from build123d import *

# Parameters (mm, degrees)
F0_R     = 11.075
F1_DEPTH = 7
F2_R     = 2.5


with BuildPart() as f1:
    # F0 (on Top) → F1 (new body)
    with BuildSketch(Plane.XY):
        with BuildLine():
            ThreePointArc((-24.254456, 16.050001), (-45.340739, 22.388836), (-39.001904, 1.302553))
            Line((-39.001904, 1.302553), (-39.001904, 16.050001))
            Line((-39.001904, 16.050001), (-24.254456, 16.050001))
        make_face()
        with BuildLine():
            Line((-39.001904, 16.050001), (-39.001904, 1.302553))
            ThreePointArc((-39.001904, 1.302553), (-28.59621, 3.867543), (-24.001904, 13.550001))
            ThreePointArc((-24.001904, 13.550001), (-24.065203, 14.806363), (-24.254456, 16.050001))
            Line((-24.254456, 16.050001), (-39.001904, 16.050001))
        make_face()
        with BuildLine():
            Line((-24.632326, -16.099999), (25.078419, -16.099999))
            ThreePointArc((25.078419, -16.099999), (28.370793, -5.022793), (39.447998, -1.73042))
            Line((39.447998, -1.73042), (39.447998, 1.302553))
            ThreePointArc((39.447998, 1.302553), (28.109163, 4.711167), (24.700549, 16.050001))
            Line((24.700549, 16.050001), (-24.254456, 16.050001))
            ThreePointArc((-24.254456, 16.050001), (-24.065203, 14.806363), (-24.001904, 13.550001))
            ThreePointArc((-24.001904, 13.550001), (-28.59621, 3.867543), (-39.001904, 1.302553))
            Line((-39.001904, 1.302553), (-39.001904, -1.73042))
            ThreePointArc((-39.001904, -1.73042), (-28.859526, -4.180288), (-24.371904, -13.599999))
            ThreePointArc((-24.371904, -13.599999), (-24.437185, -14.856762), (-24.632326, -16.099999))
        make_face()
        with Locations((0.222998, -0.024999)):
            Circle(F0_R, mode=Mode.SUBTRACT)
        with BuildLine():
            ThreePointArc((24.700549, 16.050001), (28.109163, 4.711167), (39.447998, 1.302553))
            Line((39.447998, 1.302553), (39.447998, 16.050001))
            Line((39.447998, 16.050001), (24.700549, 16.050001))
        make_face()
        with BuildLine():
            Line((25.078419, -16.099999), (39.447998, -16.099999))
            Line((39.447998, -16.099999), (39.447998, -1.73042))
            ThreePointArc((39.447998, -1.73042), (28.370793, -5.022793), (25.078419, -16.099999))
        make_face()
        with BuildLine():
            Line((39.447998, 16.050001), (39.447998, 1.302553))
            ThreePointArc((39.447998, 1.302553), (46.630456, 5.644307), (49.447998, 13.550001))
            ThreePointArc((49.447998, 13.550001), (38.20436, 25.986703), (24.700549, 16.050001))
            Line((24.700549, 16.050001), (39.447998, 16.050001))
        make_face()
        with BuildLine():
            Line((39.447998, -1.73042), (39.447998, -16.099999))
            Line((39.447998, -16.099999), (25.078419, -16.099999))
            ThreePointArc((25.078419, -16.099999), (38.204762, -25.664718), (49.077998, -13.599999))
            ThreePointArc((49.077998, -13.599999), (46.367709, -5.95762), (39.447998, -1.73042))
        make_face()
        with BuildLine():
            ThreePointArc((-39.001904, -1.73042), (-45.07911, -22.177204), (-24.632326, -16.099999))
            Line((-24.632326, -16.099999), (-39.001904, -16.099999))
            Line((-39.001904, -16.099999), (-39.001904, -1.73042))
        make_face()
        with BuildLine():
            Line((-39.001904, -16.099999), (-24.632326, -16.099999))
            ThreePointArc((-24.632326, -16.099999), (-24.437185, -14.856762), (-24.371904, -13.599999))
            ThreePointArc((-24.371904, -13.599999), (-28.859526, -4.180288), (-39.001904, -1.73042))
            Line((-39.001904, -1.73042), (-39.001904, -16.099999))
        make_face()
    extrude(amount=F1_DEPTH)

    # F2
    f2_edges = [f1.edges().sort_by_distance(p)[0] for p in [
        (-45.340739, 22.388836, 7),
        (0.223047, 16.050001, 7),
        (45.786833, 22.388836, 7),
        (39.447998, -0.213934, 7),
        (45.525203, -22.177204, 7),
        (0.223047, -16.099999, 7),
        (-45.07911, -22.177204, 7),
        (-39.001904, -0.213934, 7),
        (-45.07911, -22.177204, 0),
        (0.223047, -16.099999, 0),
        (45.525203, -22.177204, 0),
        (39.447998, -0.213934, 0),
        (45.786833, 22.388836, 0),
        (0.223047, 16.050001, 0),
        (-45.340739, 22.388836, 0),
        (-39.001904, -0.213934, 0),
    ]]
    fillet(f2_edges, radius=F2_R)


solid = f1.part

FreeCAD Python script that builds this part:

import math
import FreeCAD as App
import Part
import Sketcher
from FreeCAD import Vector
Q = App.Units.Quantity


def edges_at(feature, points):
    """Names of the edges that pass closest to the given points."""
    edges = feature.Shape.Edges
    near = lambda p: min(range(len(edges)), key=lambda i: edges[i].distToShape(Part.Vertex(*p))[0])
    return sorted({f"Edge{near(p) + 1}" for p in points})

doc = App.newDocument("Part")
body = doc.addObject("PartDesign::Body", "Body")

sketch1 = body.newObject("Sketcher::SketchObject", "Sketch")
sketch1.AttachmentSupport = (doc.getObject("XY_Plane"), [""])
sketch1.MapMode = "FlatFace"
sketch1.addGeometry(Part.ArcOfCircle(Part.Circle(Vector(-36.5, 13.6, 0), Vector(0, 0, 1), 12.5), math.radians(12), math.radians(258)), False)
sketch1.addGeometry(Part.LineSegment(Vector(-39, 1.3, 0), Vector(-39, -1.7, 0)), False)
sketch1.addGeometry(Part.ArcOfCircle(Part.Circle(Vector(-36.5, -13.6, 0), Vector(0, 0, 1), 12.1), math.radians(102), math.radians(348)), False)
sketch1.addGeometry(Part.LineSegment(Vector(-24.6, -16.1, 0), Vector(25.1, -16.1, 0)), False)
sketch1.addGeometry(Part.ArcOfCircle(Part.Circle(Vector(36.9, -13.6, 0), Vector(0, 0, 1), 12.1), math.radians(-168), math.radians(0)), False)
sketch1.addGeometry(Part.ArcOfCircle(Part.Circle(Vector(36.9, -13.6, 0), Vector(0, 0, 1), 12.1), math.radians(0), math.radians(78)), False)
sketch1.addGeometry(Part.LineSegment(Vector(39.4, -1.7, 0), Vector(39.4, 1.3, 0)), False)
sketch1.addGeometry(Part.ArcOfCircle(Part.Circle(Vector(36.9, 13.6, 0), Vector(0, 0, 1), 12.5), math.radians(-78), math.radians(0)), False)
sketch1.addGeometry(Part.ArcOfCircle(Part.Circle(Vector(36.9, 13.6, 0), Vector(0, 0, 1), 12.5), math.radians(0), math.radians(168)), False)
sketch1.addGeometry(Part.LineSegment(Vector(24.7, 16.1, 0), Vector(-24.3, 16.1, 0)), False)
sketch1.addGeometry(Part.Circle(Vector(0.2, 0, 0), Vector(0, 0, 1), 11.1), False)
sketch1.addConstraint(Sketcher.Constraint("Coincident", 0, 2, 1, 1))
sketch1.addConstraint(Sketcher.Constraint("Coincident", 1, 2, 2, 1))
sketch1.addConstraint(Sketcher.Constraint("Coincident", 2, 2, 3, 1))
sketch1.addConstraint(Sketcher.Constraint("Coincident", 3, 2, 4, 1))
sketch1.addConstraint(Sketcher.Constraint("Tangent", 4, 2, 5, 1))
sketch1.addConstraint(Sketcher.Constraint("Coincident", 5, 2, 6, 1))
sketch1.addConstraint(Sketcher.Constraint("Coincident", 6, 2, 7, 1))
sketch1.addConstraint(Sketcher.Constraint("Tangent", 7, 2, 8, 1))
sketch1.addConstraint(Sketcher.Constraint("Coincident", 8, 2, 9, 1))
sketch1.addConstraint(Sketcher.Constraint("Coincident", 9, 2, 0, 1))
sketch1.addConstraint(Sketcher.Constraint("Vertical", 1))
sketch1.addConstraint(Sketcher.Constraint("Horizontal", 3))
sketch1.addConstraint(Sketcher.Constraint("Vertical", 6))
sketch1.addConstraint(Sketcher.Constraint("Horizontal", 9))
sketch1.addConstraint(Sketcher.Constraint("Equal", 2, 4))
sketch1.addConstraint(Sketcher.Constraint("Equal", 4, 5))
sketch1.addConstraint(Sketcher.Constraint("Equal", 0, 7))
sketch1.addConstraint(Sketcher.Constraint("Equal", 7, 8))
sketch1.addConstraint(Sketcher.Constraint("Horizontal", 2, 3, 4, 3))
sketch1.addConstraint(Sketcher.Constraint("Horizontal", 0, 3, 7, 3))
sketch1.addConstraint(Sketcher.Constraint("Horizontal", 5, 3, 4, 2))
sketch1.addConstraint(Sketcher.Constraint("Horizontal", 1, 2, 5, 2))
sketch1.addConstraint(Sketcher.Constraint("Horizontal", 0, 2, 6, 2))
sketch1.addConstraint(Sketcher.Constraint("Horizontal", 8, 3, 7, 2))
sketch1.addConstraint(Sketcher.Constraint("Vertical", 0, 3, 2, 3))
sketch1.addConstraint(Sketcher.Constraint("Radius", 0, Q("12.5 mm")))
sketch1.addConstraint(Sketcher.Constraint("Diameter", 10, Q("22.15 mm")))
sketch1.addConstraint(Sketcher.Constraint("Radius", 2, Q("12.13 mm")))
sketch1.addConstraint(Sketcher.Constraint("DistanceX", 6, 2, 7, 2, Q("10 mm")))
sketch1.addConstraint(Sketcher.Constraint("DistanceY", 2, 3, -1, 1, Q("13.599999 mm")))
sketch1.addConstraint(Sketcher.Constraint("DistanceY", 2, 2, -1, 1, Q("16.099999 mm")))
sketch1.addConstraint(Sketcher.Constraint("DistanceY", 8, 3, 8, 2, Q("2.5 mm")))
sketch1.addConstraint(Sketcher.Constraint("DistanceY", -1, 1, 0, 3, Q("13.550001 mm")))
sketch1.addConstraint(Sketcher.Constraint("DistanceX", -1, 1, 5, 3, Q("36.947999 mm")))
sketch1.addConstraint(Sketcher.Constraint("DistanceY", 10, 3, -1, 1, Q("0.024999 mm")))
sketch1.addConstraint(Sketcher.Constraint("DistanceX", 10, 3, 4, 3, Q("36.725 mm")))
sketch1.addConstraint(Sketcher.Constraint("DistanceX", 0, 2, 10, 3, Q("39.224902 mm")))
pad1 = body.newObject("PartDesign::Pad", "Pad")
pad1.Profile = sketch1
pad1.Length = 7
doc.recompute()

fillet = body.newObject("PartDesign::Fillet", "Fillet")
fillet.Base = (pad1, edges_at(pad1, [
    (-45.341, 22.389, 7),
    (0.223, 16.05, 7),
    (38.204, 25.987, 7),
    (39.448, -0.214, 7),
    (38.205, -25.665, 7),
    (0.223, -16.1, 7),
    (-45.079, -22.177, 7),
    (-39.002, -0.214, 7),
    (-45.079, -22.177, 0),
    (0.223, -16.1, 0),
    (38.205, -25.665, 0),
    (39.448, -0.214, 0),
    (38.204, 25.987, 0),
    (0.223, 16.05, 0),
    (-45.341, 22.389, 0),
    (-39.002, -0.214, 0),
]))
fillet.Radius = 2.5

doc.recompute()
